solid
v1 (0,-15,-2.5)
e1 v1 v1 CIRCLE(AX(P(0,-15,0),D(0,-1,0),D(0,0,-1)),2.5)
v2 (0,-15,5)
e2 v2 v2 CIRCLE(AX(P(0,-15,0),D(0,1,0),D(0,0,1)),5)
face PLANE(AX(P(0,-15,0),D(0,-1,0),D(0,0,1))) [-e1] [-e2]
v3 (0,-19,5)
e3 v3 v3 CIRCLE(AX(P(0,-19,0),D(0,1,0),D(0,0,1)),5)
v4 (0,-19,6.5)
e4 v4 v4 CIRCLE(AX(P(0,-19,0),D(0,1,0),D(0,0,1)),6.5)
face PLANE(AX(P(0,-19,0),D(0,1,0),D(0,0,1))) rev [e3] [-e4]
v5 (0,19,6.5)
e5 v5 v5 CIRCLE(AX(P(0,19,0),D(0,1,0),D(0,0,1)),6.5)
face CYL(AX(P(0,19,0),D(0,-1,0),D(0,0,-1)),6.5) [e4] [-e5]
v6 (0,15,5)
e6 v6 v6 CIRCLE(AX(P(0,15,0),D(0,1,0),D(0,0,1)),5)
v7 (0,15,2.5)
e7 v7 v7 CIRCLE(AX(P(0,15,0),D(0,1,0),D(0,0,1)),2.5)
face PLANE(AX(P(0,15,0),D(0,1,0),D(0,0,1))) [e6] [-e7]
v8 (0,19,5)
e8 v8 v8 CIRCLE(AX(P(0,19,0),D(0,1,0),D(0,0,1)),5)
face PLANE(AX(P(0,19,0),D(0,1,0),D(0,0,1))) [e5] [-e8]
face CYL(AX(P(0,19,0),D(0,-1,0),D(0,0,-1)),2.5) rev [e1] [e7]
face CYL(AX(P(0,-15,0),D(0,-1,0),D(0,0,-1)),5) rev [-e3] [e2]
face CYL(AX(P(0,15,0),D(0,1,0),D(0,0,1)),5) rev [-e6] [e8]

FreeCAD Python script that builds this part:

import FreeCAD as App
import Part
import Sketcher
from FreeCAD import Vector
Q = App.Units.Quantity

doc = App.newDocument("Part")
body = doc.addObject("PartDesign::Body", "Body")

# Sketch on XZ plane
sketch1 = doc.addObject("Sketcher::SketchObject", "Sketch")
body.addObject(sketch1)
sketch1.AttachmentSupport = (doc.XZ_Plane, [""])
sketch1.MapMode = "FlatFace"
sketch1.addGeometry([
    Part.Circle(Vector(0, 0, 0), Vector(0, 0, 1), 6.5),
    Part.Circle(Vector(0, 0, 0), Vector(0, 0, 1), 2.5),
], False)
sketch1.addConstraint([
    Sketcher.Constraint("Coincident", 0, 3, -1, 1),
    Sketcher.Constraint("Coincident", 1, 3, -1, 1),
    Sketcher.Constraint("Diameter", 0, Q("13 mm")),
    Sketcher.Constraint("Diameter", 1, Q("5 mm")),
])
pad1 = doc.addObject("PartDesign::Pad", "Pad")
body.addObject(pad1)
pad1.Profile = sketch1
pad1.Length = 38
pad1.Midplane = True

# Sketch on XZ plane
sketch2 = doc.addObject("Sketcher::SketchObject", "Sketch001")
body.addObject(sketch2)
sketch2.AttachmentSupport = (doc.XZ_Plane, [""])
sketch2.MapMode = "FlatFace"
sketch2.AttachmentOffset = App.Placement(Vector(0, 0, -19), App.Rotation())
sketch2.addGeometry(Part.Circle(Vector(0, 0, 0), Vector(0, 0, 1), 5), False)
sketch2.addConstraint([
    Sketcher.Constraint("Coincident", 0, 3, -1, 1),
    Sketcher.Constraint("Diameter", 0, Q("10 mm")),
])
pocket1 = doc.addObject("PartDesign::Pocket", "Pocket")
body.addObject(pocket1)
pocket1.Profile = sketch2
pocket1.Length = 4
pocket1.Reversed = True
doc.recompute()

mirrored = doc.addObject("PartDesign::Mirrored", "Mirrored")
body.addObject(mirrored)
mirrored.Originals = [pocket1]
mirrored.MirrorPlane = (doc.XZ_Plane, [""])
body.Tip = mirrored

doc.recompute()
